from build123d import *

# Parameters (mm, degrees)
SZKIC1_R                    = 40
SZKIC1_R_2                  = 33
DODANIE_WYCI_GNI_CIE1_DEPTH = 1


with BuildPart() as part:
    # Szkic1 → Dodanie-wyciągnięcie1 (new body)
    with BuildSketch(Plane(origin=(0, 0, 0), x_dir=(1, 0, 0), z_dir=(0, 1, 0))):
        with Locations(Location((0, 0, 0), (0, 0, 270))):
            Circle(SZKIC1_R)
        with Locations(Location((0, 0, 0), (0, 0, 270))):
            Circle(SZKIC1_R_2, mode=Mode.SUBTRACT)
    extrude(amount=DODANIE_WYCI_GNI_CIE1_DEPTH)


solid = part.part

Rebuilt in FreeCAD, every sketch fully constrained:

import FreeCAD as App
import Part
import Sketcher
from FreeCAD import Vector
Q = App.Units.Quantity

doc = App.newDocument("Part")
body = doc.addObject("PartDesign::Body", "Body")

# Sketch on XZ plane
sketch1 = body.newObject("Sketcher::SketchObject", "Sketch")
sketch1.AttachmentSupport = (doc.getObject("XZ_Plane"), [""])
sketch1.MapMode = "FlatFace"
sketch1.addGeometry([
    Part.Circle(Vector(0, 0, 0), Vector(0, 0, 1), 40),
    Part.Circle(Vector(0, 0, 0), Vector(0, 0, 1), 33),
], False)
sketch1.addConstraint([
    Sketcher.Constraint("Coincident", 0, 3, -1, 1),
    Sketcher.Constraint("Coincident", 1, 3, -1, 1),
    Sketcher.Constraint("Diameter", 0, Q("80 mm")),
    Sketcher.Constraint("Diameter", 1, Q("66 mm")),
])
pad1 = body.newObject("PartDesign::Pad", "Pad")
pad1.Profile = sketch1
pad1.Length = 1
pad1.Reversed = True

doc.recompute()
